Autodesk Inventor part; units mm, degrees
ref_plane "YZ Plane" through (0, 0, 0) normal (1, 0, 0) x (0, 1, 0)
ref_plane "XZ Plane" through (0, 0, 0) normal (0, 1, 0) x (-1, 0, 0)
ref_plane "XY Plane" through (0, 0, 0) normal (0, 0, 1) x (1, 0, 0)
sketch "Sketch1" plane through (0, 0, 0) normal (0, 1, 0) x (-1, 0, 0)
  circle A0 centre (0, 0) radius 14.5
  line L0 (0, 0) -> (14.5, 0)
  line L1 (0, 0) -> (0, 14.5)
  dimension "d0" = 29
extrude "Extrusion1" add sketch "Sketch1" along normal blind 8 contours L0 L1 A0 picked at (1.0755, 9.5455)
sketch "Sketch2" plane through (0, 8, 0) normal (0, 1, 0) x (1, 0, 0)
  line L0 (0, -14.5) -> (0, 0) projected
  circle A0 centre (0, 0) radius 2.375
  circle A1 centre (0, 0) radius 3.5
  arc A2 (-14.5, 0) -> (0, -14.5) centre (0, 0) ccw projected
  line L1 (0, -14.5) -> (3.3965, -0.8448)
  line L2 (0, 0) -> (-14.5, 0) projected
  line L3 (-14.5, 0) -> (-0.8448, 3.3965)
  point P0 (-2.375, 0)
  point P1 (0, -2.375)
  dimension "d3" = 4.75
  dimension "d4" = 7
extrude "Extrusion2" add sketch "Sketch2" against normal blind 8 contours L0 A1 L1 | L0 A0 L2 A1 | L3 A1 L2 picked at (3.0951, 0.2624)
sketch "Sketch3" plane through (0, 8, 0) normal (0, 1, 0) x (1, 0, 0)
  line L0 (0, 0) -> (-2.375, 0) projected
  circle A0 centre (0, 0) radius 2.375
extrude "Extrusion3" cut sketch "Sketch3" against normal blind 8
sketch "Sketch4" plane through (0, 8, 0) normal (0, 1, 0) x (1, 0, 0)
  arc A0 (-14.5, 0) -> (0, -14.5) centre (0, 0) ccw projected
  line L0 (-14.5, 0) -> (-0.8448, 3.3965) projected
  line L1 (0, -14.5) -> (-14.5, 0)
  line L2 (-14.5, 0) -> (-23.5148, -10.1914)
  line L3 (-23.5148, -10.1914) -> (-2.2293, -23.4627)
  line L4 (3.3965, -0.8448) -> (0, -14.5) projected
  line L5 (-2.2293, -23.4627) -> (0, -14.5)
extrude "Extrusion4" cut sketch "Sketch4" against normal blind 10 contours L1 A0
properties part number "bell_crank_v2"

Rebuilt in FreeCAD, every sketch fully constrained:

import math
import FreeCAD as App
import Part
import Sketcher
from FreeCAD import Vector
Q = App.Units.Quantity

doc = App.newDocument("Part")
body = doc.addObject("PartDesign::Body", "Body")

sketch1 = body.newObject("Sketcher::SketchObject", "Sketch")
sketch1.AttachmentSupport = (doc.getObject("XZ_Plane"), [""])
sketch1.MapMode = "FlatFace"
sketch1.addGeometry(Part.LineSegment(Vector(0, 0, 0), Vector(-14.5, 0, 0)), False)
sketch1.addGeometry(Part.ArcOfCircle(Part.Circle(Vector(0, 0, 0), Vector(0, 0, 1), 14.5), math.radians(90), math.radians(180)), False)
sketch1.addGeometry(Part.LineSegment(Vector(0, 14.5, 0), Vector(0, 0, 0)), False)
sketch1.addConstraint(Sketcher.Constraint("Coincident", 0, 2, 1, 2))
sketch1.addConstraint(Sketcher.Constraint("Coincident", 1, 1, 2, 1))
sketch1.addConstraint(Sketcher.Constraint("Coincident", 2, 2, 0, 1))
sketch1.addConstraint(Sketcher.Constraint("Horizontal", 0))
sketch1.addConstraint(Sketcher.Constraint("Vertical", 2))
sketch1.addConstraint(Sketcher.Constraint("Coincident", 1, 3, -1, 1))
sketch1.addConstraint(Sketcher.Constraint("Coincident", 2, 2, -1, 1))
sketch1.addConstraint(Sketcher.Constraint("Radius", 1, Q("14.5 mm")))
pad1 = body.newObject("PartDesign::Pad", "Pad")
pad1.Profile = sketch1
pad1.Length = 8
pad1.Reversed = True

sketch2 = body.newObject("Sketcher::SketchObject", "Sketch001")
sketch2.AttachmentSupport = (doc.getObject("XZ_Plane"), [""])
sketch2.MapMode = "FlatFace"
sketch2.AttachmentOffset = App.Placement(Vector(0, 0, -8), App.Rotation())
sketch2.addGeometry(Part.LineSegment(Vector(0, 14.5, 0), Vector(3.3965, 0.8448, 0)), False)
sketch2.addGeometry(Part.ArcOfCircle(Part.Circle(Vector(0, 0, 0), Vector(0, 0, 1), 3.5), math.radians(-103.967556), math.radians(13.967556)), False)
sketch2.addGeometry(Part.LineSegment(Vector(-0.8448, -3.3965, 0), Vector(-14.5, 0, 0)), False)
sketch2.addGeometry(Part.LineSegment(Vector(-14.5, 0, 0), Vector(-2.375, 0, 0)), False)
sketch2.addGeometry(Part.ArcOfCircle(Part.Circle(Vector(0, 0, 0), Vector(0, 0, 1), 2.375), math.radians(180), math.radians(450)), False)
sketch2.addGeometry(Part.LineSegment(Vector(0, 2.375, 0), Vector(0, 14.5, 0)), False)
sketch2.addConstraint(Sketcher.Constraint("Tangent", 0, 2, 1, 2))
sketch2.addConstraint(Sketcher.Constraint("Tangent", 1, 1, 2, 1))
sketch2.addConstraint(Sketcher.Constraint("Coincident", 2, 2, 3, 1))
sketch2.addConstraint(Sketcher.Constraint("Coincident", 3, 2, 4, 1))
sketch2.addConstraint(Sketcher.Constraint("Coincident", 4, 2, 5, 1))
sketch2.addConstraint(Sketcher.Constraint("Coincident", 5, 2, 0, 1))
sketch2.addConstraint(Sketcher.Constraint("Horizontal", 3))
sketch2.addConstraint(Sketcher.Constraint("Vertical", 5))
sketch2.addConstraint(Sketcher.Constraint("Coincident", 1, 3, -1, 1))
sketch2.addConstraint(Sketcher.Constraint("Coincident", 4, 3, -1, 1))
sketch2.addConstraint(Sketcher.Constraint("PointOnObject", 2, 2, -1))
sketch2.addConstraint(Sketcher.Constraint("PointOnObject", 4, 2, -2))
sketch2.addConstraint(Sketcher.Constraint("Equal", 3, 5))
sketch2.addConstraint(Sketcher.Constraint("Radius", 1, Q("3.5 mm")))
sketch2.addConstraint(Sketcher.Constraint("Radius", 4, Q("2.375 mm")))
sketch2.addConstraint(Sketcher.Constraint("DistanceX", 2, 2, -1, 1, Q("14.5 mm")))
pad2 = body.newObject("PartDesign::Pad", "Pad001")
pad2.Profile = sketch2
pad2.Length = 8

sketch3 = body.newObject("Sketcher::SketchObject", "Sketch002")
sketch3.AttachmentSupport = (doc.getObject("XZ_Plane"), [""])
sketch3.MapMode = "FlatFace"
sketch3.AttachmentOffset = App.Placement(Vector(0, 0, -8), App.Rotation())
sketch3.addGeometry(Part.Circle(Vector(0, 0, 0), Vector(0, 0, 1), 2.375), False)
sketch3.addConstraint(Sketcher.Constraint("Coincident", 0, 3, -1, 1))
sketch3.addConstraint(Sketcher.Constraint("Diameter", 0, Q("4.75 mm")))
pocket1 = body.newObject("PartDesign::Pocket", "Pocket")
pocket1.Profile = sketch3
pocket1.Length = 8
pocket1.Reversed = True

sketch4 = body.newObject("Sketcher::SketchObject", "Sketch003")
sketch4.AttachmentSupport = (doc.getObject("XZ_Plane"), [""])
sketch4.MapMode = "FlatFace"
sketch4.AttachmentOffset = App.Placement(Vector(0, 0, -8), App.Rotation())
sketch4.addGeometry(Part.LineSegment(Vector(0, 14.5, 0), Vector(-14.5, 0, 0)), False)
sketch4.addGeometry(Part.ArcOfCircle(Part.Circle(Vector(0, 0, 0), Vector(0, 0, 1), 14.5), math.radians(90), math.radians(180)), False)
sketch4.addConstraint(Sketcher.Constraint("Coincident", 0, 1, 1, 1))
sketch4.addConstraint(Sketcher.Constraint("Coincident", 1, 2, 0, 2))
sketch4.addConstraint(Sketcher.Constraint("Coincident", 1, 3, -1, 1))
sketch4.addConstraint(Sketcher.Constraint("PointOnObject", 0, 1, -2))
sketch4.addConstraint(Sketcher.Constraint("PointOnObject", 1, 2, -1))
sketch4.addConstraint(Sketcher.Constraint("Radius", 1, Q("14.5 mm")))
pocket2 = body.newObject("PartDesign::Pocket", "Pocket001")
pocket2.Profile = sketch4
pocket2.Length = 10
pocket2.Reversed = True

doc.recompute()
